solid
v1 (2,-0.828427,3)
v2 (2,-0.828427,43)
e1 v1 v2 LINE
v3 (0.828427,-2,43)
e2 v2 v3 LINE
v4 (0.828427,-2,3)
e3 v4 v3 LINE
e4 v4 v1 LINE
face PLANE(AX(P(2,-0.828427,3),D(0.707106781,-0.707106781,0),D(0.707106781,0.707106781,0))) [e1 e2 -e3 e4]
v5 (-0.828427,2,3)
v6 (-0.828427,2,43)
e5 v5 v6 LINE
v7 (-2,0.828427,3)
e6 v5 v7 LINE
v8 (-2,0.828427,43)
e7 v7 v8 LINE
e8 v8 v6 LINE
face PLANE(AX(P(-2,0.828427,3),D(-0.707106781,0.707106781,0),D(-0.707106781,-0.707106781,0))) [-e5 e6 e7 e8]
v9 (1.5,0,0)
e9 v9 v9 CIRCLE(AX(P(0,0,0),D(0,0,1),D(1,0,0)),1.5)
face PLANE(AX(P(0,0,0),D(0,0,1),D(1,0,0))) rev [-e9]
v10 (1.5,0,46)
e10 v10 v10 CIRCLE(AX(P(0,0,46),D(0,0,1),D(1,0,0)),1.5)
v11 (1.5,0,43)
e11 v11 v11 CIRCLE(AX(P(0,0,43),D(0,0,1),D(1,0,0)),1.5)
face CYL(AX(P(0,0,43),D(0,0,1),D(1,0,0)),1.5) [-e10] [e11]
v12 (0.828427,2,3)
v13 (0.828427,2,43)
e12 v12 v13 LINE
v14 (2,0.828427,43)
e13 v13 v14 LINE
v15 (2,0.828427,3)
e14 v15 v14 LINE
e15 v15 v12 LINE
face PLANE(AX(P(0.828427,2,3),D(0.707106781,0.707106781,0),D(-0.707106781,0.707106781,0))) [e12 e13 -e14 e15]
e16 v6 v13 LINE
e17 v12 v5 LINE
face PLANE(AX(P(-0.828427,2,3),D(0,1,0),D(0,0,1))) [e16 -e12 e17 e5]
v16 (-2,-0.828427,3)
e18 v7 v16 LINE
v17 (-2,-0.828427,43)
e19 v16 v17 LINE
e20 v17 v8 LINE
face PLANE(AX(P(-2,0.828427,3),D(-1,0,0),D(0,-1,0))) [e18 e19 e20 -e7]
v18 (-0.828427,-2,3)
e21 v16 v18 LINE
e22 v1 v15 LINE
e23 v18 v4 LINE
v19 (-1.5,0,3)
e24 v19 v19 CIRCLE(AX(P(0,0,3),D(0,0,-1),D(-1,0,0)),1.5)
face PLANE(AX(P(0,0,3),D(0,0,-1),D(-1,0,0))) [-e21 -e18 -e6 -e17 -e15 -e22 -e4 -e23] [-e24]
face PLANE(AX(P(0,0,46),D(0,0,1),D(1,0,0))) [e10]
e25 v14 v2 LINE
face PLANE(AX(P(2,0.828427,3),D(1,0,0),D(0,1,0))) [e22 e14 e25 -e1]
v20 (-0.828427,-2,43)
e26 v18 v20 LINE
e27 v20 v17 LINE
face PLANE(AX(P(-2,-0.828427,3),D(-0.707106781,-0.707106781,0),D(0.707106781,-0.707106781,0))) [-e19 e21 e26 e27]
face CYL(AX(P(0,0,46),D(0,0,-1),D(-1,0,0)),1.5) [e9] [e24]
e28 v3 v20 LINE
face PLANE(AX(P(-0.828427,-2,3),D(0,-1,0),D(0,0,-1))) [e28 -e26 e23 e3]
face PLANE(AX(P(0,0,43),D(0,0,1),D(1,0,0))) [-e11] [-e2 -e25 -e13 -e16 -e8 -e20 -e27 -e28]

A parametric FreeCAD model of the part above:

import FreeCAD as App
import Part
import Sketcher

V = App.Vector


def add_polygon(sketch, points):
    """Adds a closed chain of lines whose ends are joined by coincident constraints."""
    first, n = sketch.GeometryCount, len(points)
    for a, b in zip(points, points[1:] + points[:1]):
        sketch.addGeometry(Part.LineSegment(App.Vector(*a, 0), App.Vector(*b, 0)), False)
    for i in range(n):
        sketch.addConstraint(Sketcher.Constraint("Coincident", first + i, 2, first + (i + 1) % n, 1))

doc = App.newDocument("Part")
body = doc.addObject("PartDesign::Body", "Body")

sketch1 = body.newObject("Sketcher::SketchObject", "Sketch")
sketch1.AttachmentSupport = (doc.getObject("XY_Plane"), [""])
sketch1.MapMode = "FlatFace"
sketch1.addGeometry(Part.Circle(V(0, 0, 0), V(0, 0, 1), 1.5), False)
sketch1.addConstraint([
    Sketcher.Constraint("Coincident", 0, 3, -1, 1),
    Sketcher.Constraint("Diameter", 0, 3.0),
])
pad1 = body.newObject("PartDesign::Pad", "Pad")
pad1.Profile = sketch1
pad1.Length = 46

sketch2 = body.newObject("Sketcher::SketchObject", "Sketch001")
sketch2.AttachmentSupport = (doc.getObject("XY_Plane"), [""])
sketch2.MapMode = "FlatFace"
sketch2.AttachmentOffset = App.Placement(V(0, 0, 46), App.Rotation())
add_polygon(sketch2, [(-0.8, -2), (0.8, -2), (2, -0.8), (2, 0.8), (0.8, 2), (-0.8, 2), (-2, 0.8), (-2, -0.8)])
sketch2.addConstraint([
    Sketcher.Constraint("Horizontal", 0),
    Sketcher.Constraint("Vertical", 2),
    Sketcher.Constraint("Horizontal", 4),
    Sketcher.Constraint("Vertical", 6),
    Sketcher.Constraint("Symmetric", 0, 2, 4, 2, -1, 1),
    Sketcher.Constraint("Symmetric", 1, 2, 5, 2, -1, 1),
    Sketcher.Constraint("Perpendicular", 1, 3),
    Sketcher.Constraint("Perpendicular", 5, 7),
    Sketcher.Constraint("Horizontal", 2, 2, 5, 2),
    Sketcher.Constraint("Horizontal", 1, 2, 6, 2),
    Sketcher.Constraint("Vertical", 0, 2, 3, 2),
    Sketcher.Constraint("Equal", 4, 2),
    Sketcher.Constraint("DistanceY", 0, 2, -1, 1, 2.0),
    Sketcher.Constraint("DistanceX", 0, 1, 0, 2, 1.656854),
])
pad2 = body.newObject("PartDesign::Pad", "Pad001")
pad2.Profile = sketch2
pad2.Length = 43
pad2.Reversed = True

sketch3 = body.newObject("Sketcher::SketchObject", "Sketch002")
sketch3.AttachmentSupport = (doc.getObject("XY_Plane"), [""])
sketch3.MapMode = "FlatFace"
sketch3.AttachmentOffset = App.Placement(V(0, 0, 43), App.Rotation())
sketch3.addGeometry([
    Part.Circle(V(0, 0, 0), V(0, 0, 1), 3.2),
    Part.Circle(V(0, 0, 0), V(0, 0, 1), 1.5),
], False)
sketch3.addConstraint([
    Sketcher.Constraint("Coincident", 0, 3, -1, 1),
    Sketcher.Constraint("Coincident", 1, 3, -1, 1),
    Sketcher.Constraint("Diameter", 1, 3.0),
    Sketcher.Constraint("Diameter", 0, 6.30759),
])
pocket1 = body.newObject("PartDesign::Pocket", "Pocket")
pocket1.Profile = sketch3
pocket1.Length = 3
pocket1.Reversed = True

doc.recompute()
